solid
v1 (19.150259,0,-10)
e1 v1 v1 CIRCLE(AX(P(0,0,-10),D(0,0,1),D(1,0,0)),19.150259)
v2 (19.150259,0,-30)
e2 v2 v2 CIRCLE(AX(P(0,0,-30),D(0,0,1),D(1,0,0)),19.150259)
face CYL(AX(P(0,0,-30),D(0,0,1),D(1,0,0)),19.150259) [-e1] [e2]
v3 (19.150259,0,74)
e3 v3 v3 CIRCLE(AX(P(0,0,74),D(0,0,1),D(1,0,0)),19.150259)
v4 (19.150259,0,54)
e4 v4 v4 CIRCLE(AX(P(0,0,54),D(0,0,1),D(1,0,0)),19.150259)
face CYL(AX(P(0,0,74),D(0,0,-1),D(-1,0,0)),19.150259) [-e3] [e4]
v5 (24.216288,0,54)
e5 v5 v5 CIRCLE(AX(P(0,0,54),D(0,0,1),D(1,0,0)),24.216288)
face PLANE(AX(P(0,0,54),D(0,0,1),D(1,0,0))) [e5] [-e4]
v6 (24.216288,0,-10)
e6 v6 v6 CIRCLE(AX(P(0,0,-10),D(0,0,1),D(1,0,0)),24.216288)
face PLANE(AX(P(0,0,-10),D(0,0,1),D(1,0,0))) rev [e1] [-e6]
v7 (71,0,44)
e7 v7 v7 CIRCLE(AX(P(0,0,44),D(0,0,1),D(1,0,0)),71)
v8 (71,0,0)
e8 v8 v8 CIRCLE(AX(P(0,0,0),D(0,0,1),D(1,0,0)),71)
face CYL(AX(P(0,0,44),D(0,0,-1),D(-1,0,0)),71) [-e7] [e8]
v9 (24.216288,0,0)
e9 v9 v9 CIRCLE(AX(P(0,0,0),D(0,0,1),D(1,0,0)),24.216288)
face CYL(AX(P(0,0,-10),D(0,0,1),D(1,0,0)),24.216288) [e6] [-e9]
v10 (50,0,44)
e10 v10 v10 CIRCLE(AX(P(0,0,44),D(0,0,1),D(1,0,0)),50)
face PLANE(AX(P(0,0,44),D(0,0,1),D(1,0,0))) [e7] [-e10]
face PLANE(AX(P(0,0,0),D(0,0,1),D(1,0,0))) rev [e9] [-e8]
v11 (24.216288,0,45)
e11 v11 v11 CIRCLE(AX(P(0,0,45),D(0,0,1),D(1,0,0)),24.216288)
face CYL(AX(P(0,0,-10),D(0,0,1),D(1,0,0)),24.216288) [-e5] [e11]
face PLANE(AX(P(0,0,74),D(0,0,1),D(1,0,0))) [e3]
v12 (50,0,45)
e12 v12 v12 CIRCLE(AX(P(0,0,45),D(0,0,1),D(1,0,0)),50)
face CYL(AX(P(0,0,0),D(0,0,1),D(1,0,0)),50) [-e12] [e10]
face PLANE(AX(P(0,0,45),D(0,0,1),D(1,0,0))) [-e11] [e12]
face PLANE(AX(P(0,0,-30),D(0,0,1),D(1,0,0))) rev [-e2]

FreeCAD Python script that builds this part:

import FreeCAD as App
import Part
import Sketcher
Q = App.Units.Quantity

doc = App.newDocument("Part")
body = doc.addObject("PartDesign::Body", "Body")

# Sketch on XY plane
sketch1 = body.newObject("Sketcher::SketchObject", "Sketch")
sketch1.AttachmentSupport = (doc.getObject("XY_Plane"), [""])
sketch1.MapMode = "FlatFace"
sketch1.addGeometry([
    Part.Circle(App.Vector(0, 0, 0), App.Vector(0, 0, 1), 71),
    Part.Circle(App.Vector(0, 0, 0), App.Vector(0, 0, 1), 50),
], False)
sketch1.addConstraint([
    Sketcher.Constraint("Coincident", 0, 3, -1, 1),
    Sketcher.Constraint("Coincident", 1, 3, -1, 1),
    Sketcher.Constraint("Diameter", 0, Q("142 mm")),
    Sketcher.Constraint("Diameter", 1, Q("100 mm")),
])
pad1 = body.newObject("PartDesign::Pad", "Pad")
pad1.Profile = sketch1
pad1.Length = 44
body2 = doc.addObject("PartDesign::Body", "Body001")

# Sketch on XY plane
sketch2 = body2.newObject("Sketcher::SketchObject", "Sketch001")
sketch2.AttachmentSupport = (doc.getObject("XY_Plane001"), [""])
sketch2.MapMode = "FlatFace"
sketch2.addGeometry([
    Part.Circle(App.Vector(0, 0, 0), App.Vector(0, 0, 1), 24.216288),
    Part.Circle(App.Vector(0, 0, 0), App.Vector(0, 0, 1), 19.150259),
], False)
sketch2.addConstraint([
    Sketcher.Constraint("Coincident", 0, 3, -1, 1),
    Sketcher.Constraint("Coincident", 1, 3, -1, 1),
    Sketcher.Constraint("Diameter", 1, Q("38.300519 mm")),
    Sketcher.Constraint("Diameter", 0, Q("48.432577 mm")),
])
pad2 = body2.newObject("PartDesign::Pad", "Pad001")
pad2.Profile = sketch2
pad2.Type = "TwoLengths"
pad2.Length = 54
pad2.Length2 = 10
body3 = doc.addObject("PartDesign::Body", "Body002")

# Sketch on XY plane
sketch3 = body3.newObject("Sketcher::SketchObject", "Sketch002")
sketch3.AttachmentSupport = (doc.getObject("XY_Plane002"), [""])
sketch3.MapMode = "FlatFace"
sketch3.addGeometry(Part.Circle(App.Vector(0, 0, 0), App.Vector(0, 0, 1), 19.150259), False)
sketch3.addConstraint([
    Sketcher.Constraint("Coincident", 0, 3, -1, 1),
    Sketcher.Constraint("Diameter", 0, Q("38.300519 mm")),
])
pad3 = body3.newObject("PartDesign::Pad", "Pad002")
pad3.Profile = sketch3
pad3.Length = 30
pad3.Reversed = True
body4 = doc.addObject("PartDesign::Body", "Body003")

# Sketch on XY plane
sketch4 = body4.newObject("Sketcher::SketchObject", "Sketch003")
sketch4.AttachmentSupport = (doc.getObject("XY_Plane003"), [""])
sketch4.MapMode = "FlatFace"
sketch4.addGeometry(Part.Circle(App.Vector(0, 0, 0), App.Vector(0, 0, 1), 19.150259), False)
sketch4.addConstraint([
    Sketcher.Constraint("Coincident", 0, 3, -1, 1),
    Sketcher.Constraint("Diameter", 0, Q("38.300519 mm")),
])
pad4 = body4.newObject("PartDesign::Pad", "Pad003")
pad4.Profile = sketch4
pad4.Length = 74
body.AllowCompound = True
doc.recompute()

boolean = body.newObject("PartDesign::Boolean", "Boolean")
boolean.Type = "Fuse"
boolean.addObjects([body2])
doc.recompute()

boolean2 = body.newObject("PartDesign::Boolean", "Boolean001")
boolean2.Type = "Fuse"
boolean2.addObjects([body3])
doc.recompute()

boolean3 = body.newObject("PartDesign::Boolean", "Boolean002")
boolean3.Type = "Fuse"
boolean3.addObjects([body4])

# Sketch on XY plane
sketch5 = body.newObject("Sketcher::SketchObject", "Sketch004")
sketch5.AttachmentSupport = (doc.getObject("XY_Plane"), [""])
sketch5.MapMode = "FlatFace"
sketch5.AttachmentOffset = App.Placement(App.Vector(0, 0, 44), App.Rotation())
sketch5.addGeometry(Part.Circle(App.Vector(0, 0, 0), App.Vector(0, 0, 1), 50), False)
sketch5.addConstraint([
    Sketcher.Constraint("Coincident", 0, 3, -1, 1),
    Sketcher.Constraint("Diameter", 0, Q("100 mm")),
])
pad5 = body.newObject("PartDesign::Pad", "Pad004")
pad5.Profile = sketch5
pad5.Type = "TwoLengths"
pad5.Length = 1
pad5.Length2 = 44

doc.recompute()
